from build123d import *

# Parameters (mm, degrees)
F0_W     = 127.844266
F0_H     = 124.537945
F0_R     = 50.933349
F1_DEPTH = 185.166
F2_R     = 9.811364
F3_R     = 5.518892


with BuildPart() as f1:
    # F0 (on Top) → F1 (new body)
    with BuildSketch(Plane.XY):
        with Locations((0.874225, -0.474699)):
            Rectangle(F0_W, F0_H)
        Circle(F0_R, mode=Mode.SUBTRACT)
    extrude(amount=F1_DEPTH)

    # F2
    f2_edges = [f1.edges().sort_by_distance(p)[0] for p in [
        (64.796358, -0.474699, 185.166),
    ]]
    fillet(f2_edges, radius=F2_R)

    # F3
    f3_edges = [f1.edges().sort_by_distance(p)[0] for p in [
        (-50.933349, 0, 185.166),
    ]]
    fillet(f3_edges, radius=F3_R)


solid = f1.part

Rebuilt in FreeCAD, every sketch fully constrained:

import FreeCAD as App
import Part
import Sketcher
Q = App.Units.Quantity


def edges_at(feature, points):
    """Names of the edges that pass closest to the given points."""
    edges = feature.Shape.Edges
    near = lambda p: min(range(len(edges)), key=lambda i: edges[i].distToShape(Part.Vertex(*p))[0])
    return sorted({f"Edge{near(p) + 1}" for p in points})


def add_polygon(sketch, points):
    """Adds a closed chain of lines whose ends are joined by coincident constraints."""
    first, n = sketch.GeometryCount, len(points)
    for a, b in zip(points, points[1:] + points[:1]):
        sketch.addGeometry(Part.LineSegment(App.Vector(*a, 0), App.Vector(*b, 0)), False)
    for i in range(n):
        sketch.addConstraint(Sketcher.Constraint("Coincident", first + i, 2, first + (i + 1) % n, 1))

doc = App.newDocument("Part")
body = doc.addObject("PartDesign::Body", "Body")

sketch1 = body.newObject("Sketcher::SketchObject", "Sketch")
sketch1.AttachmentSupport = (doc.getObject("XY_Plane"), [""])
sketch1.MapMode = "FlatFace"
add_polygon(sketch1, [(-63, 62), (-63, -63), (65, -63), (65, 62)])
sketch1.addGeometry(Part.Circle(App.Vector(0, 0, 0), App.Vector(0, 0, 1), 51), False)
sketch1.addConstraint([
    Sketcher.Constraint("Vertical", 0),
    Sketcher.Constraint("Horizontal", 1),
    Sketcher.Constraint("Vertical", 2),
    Sketcher.Constraint("Horizontal", 3),
    Sketcher.Constraint("Coincident", 4, 3, -1, 1),
    Sketcher.Constraint("Diameter", 4, Q("4.0104999 in")),
    Sketcher.Constraint("DistanceX", 1, 1, 1, 2, Q("127.844266 mm")),
    Sketcher.Constraint("DistanceY", 0, 2, 0, 1, Q("124.537945 mm")),
    Sketcher.Constraint("DistanceY", 0, 2, -1, 1, Q("62.743671 mm")),
    Sketcher.Constraint("DistanceX", 0, 2, -1, 1, Q("63.047908 mm")),
])
pad1 = body.newObject("PartDesign::Pad", "Pad")
pad1.Profile = sketch1
pad1.Length = Q("7.29 in")
doc.recompute()

fillet = body.newObject("PartDesign::Fillet", "Fillet")
fillet.Base = (pad1, edges_at(pad1, [(64.796, -0.475, 185.166)]))
fillet.Radius = 9.811364
doc.recompute()

fillet2 = body.newObject("PartDesign::Fillet", "Fillet001")
fillet2.Base = (fillet, edges_at(fillet, [(-50.933, 0, 185.166)]))
fillet2.Radius = 5.518892

doc.recompute()
